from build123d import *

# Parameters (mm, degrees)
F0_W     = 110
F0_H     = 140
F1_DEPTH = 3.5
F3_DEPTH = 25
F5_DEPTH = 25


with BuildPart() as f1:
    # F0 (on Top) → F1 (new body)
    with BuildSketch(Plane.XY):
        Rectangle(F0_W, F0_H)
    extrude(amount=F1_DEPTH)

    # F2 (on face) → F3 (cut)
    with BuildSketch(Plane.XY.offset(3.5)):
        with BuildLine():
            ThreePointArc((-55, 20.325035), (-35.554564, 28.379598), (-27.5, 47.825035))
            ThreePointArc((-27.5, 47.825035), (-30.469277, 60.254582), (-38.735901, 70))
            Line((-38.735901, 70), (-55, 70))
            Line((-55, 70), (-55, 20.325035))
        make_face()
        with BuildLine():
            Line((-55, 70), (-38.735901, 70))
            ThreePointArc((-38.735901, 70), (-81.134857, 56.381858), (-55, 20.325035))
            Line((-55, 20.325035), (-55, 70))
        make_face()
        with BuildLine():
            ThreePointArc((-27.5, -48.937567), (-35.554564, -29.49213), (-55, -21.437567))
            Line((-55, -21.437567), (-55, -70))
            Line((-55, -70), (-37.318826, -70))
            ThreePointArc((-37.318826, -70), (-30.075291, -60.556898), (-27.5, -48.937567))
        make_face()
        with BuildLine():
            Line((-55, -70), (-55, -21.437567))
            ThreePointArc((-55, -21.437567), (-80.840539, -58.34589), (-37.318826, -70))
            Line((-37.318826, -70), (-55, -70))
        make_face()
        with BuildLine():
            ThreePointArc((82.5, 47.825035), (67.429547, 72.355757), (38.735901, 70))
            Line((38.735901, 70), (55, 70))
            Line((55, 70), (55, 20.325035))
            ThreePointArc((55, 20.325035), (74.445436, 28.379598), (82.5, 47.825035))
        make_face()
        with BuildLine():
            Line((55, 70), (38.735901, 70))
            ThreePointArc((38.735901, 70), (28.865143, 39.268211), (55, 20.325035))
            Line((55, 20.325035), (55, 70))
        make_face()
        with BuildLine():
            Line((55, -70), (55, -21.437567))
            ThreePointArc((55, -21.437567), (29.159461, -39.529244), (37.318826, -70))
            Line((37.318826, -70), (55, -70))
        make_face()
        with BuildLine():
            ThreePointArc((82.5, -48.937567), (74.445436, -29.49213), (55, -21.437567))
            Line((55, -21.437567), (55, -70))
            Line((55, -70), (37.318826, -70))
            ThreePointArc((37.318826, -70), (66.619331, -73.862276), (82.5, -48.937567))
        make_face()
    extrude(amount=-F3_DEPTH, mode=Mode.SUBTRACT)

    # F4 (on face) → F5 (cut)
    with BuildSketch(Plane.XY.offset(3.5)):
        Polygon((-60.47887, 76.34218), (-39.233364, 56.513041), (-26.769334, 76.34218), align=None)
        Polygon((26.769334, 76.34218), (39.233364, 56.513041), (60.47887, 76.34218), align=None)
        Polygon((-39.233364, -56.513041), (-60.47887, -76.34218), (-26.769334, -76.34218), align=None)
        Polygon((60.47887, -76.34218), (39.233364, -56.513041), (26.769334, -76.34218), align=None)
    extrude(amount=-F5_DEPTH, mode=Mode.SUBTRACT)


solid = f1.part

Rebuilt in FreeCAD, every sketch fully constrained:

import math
import FreeCAD as App
import Part
import Sketcher

V = App.Vector
Q = App.Units.Quantity


def add_polygon(sketch, points):
    """Adds a closed chain of lines whose ends are joined by coincident constraints."""
    first, n = sketch.GeometryCount, len(points)
    for a, b in zip(points, points[1:] + points[:1]):
        sketch.addGeometry(Part.LineSegment(App.Vector(*a, 0), App.Vector(*b, 0)), False)
    for i in range(n):
        sketch.addConstraint(Sketcher.Constraint("Coincident", first + i, 2, first + (i + 1) % n, 1))

doc = App.newDocument("Part")
body = doc.addObject("PartDesign::Body", "Body")

sketch1 = body.newObject("Sketcher::SketchObject", "Sketch")
sketch1.AttachmentSupport = (doc.getObject("XY_Plane"), [""])
sketch1.MapMode = "FlatFace"
add_polygon(sketch1, [(-55, 70), (-55, -70), (55, -70), (55, 70)])
sketch1.addConstraint([
    Sketcher.Constraint("Vertical", 0),
    Sketcher.Constraint("Horizontal", 1),
    Sketcher.Constraint("Vertical", 2),
    Sketcher.Constraint("Horizontal", 3),
    Sketcher.Constraint("Symmetric", 0, 2, 2, 2, -1, 1),
    Sketcher.Constraint("DistanceX", 1, 1, 1, 2, Q("110 mm")),
    Sketcher.Constraint("DistanceY", 0, 2, 0, 1, Q("140 mm")),
])
pad1 = body.newObject("PartDesign::Pad", "Pad")
pad1.Profile = sketch1
pad1.Length = 3.5

sketch2 = body.newObject("Sketcher::SketchObject", "Sketch001")
sketch2.AttachmentSupport = (doc.getObject("XY_Plane"), [""])
sketch2.MapMode = "FlatFace"
sketch2.AttachmentOffset = App.Placement(V(0, 0, 3.5), App.Rotation())
sketch2.addGeometry([
    Part.ArcOfCircle(Part.Circle(V(-55, 48, 0), V(0, 0, 1), 27), math.radians(-90), math.radians(0)),
    Part.ArcOfCircle(Part.Circle(V(-55, 48, 0), V(0, 0, 1), 27), math.radians(0), math.radians(54)),
    Part.ArcOfCircle(Part.Circle(V(-55, 48, 0), V(0, 0, 1), 27), math.radians(54), math.radians(270)),
    Part.ArcOfCircle(Part.Circle(V(-55, -49, 0), V(0, 0, 1), 27), math.radians(0), math.radians(90)),
    Part.ArcOfCircle(Part.Circle(V(-55, -49, 0), V(0, 0, 1), 27), math.radians(90), math.radians(310)),
    Part.ArcOfCircle(Part.Circle(V(-55, -49, 0), V(0, 0, 1), 28), math.radians(-50), math.radians(0)),
    Part.ArcOfCircle(Part.Circle(V(55, 48, 0), V(0, 0, 1), 28), math.radians(0), math.radians(126)),
    Part.ArcOfCircle(Part.Circle(V(55, 48, 0), V(0, 0, 1), 27), math.radians(126), math.radians(270)),
    Part.ArcOfCircle(Part.Circle(V(55, 48, 0), V(0, 0, 1), 27), math.radians(-90), math.radians(0)),
    Part.ArcOfCircle(Part.Circle(V(55, -49, 0), V(0, 0, 1), 27), math.radians(90), math.radians(230)),
    Part.ArcOfCircle(Part.Circle(V(55, -49, 0), V(0, 0, 1), 28), math.radians(-130), math.radians(0)),
    Part.ArcOfCircle(Part.Circle(V(55, -49, 0), V(0, 0, 1), 27), math.radians(0), math.radians(90)),
], False)
sketch2.addConstraint([
    Sketcher.Constraint("Tangent", 0, 2, 1, 1),
    Sketcher.Constraint("Tangent", 1, 2, 2, 1),
    Sketcher.Constraint("Tangent", 2, 2, 0, 1),
    Sketcher.Constraint("Tangent", 3, 2, 4, 1),
    Sketcher.Constraint("Tangent", 4, 2, 5, 1),
    Sketcher.Constraint("Tangent", 5, 2, 3, 1),
    Sketcher.Constraint("Tangent", 6, 2, 7, 1),
    Sketcher.Constraint("Tangent", 7, 2, 8, 1),
    Sketcher.Constraint("Tangent", 8, 2, 6, 1),
    Sketcher.Constraint("Tangent", 9, 2, 10, 1),
    Sketcher.Constraint("Tangent", 10, 2, 11, 1),
    Sketcher.Constraint("Tangent", 11, 2, 9, 1),
    Sketcher.Constraint("Equal", 2, 3),
    Sketcher.Constraint("Equal", 4, 6),
    Sketcher.Constraint("Equal", 8, 9),
    Sketcher.Constraint("Symmetric", 0, 3, 6, 3, -2),
    Sketcher.Constraint("Symmetric", 3, 3, 9, 3, -2),
    Sketcher.Constraint("Horizontal", 8, 3, 0, 2),
    Sketcher.Constraint("Horizontal", 11, 3, 5, 2),
    Sketcher.Constraint("Horizontal", 1, 2, 6, 2),
    Sketcher.Constraint("Horizontal", 0, 2, 8, 2),
    Sketcher.Constraint("Horizontal", 4, 2, 9, 2),
    Sketcher.Constraint("Horizontal", 5, 2, 10, 2),
    Sketcher.Constraint("Vertical", 2, 3, 3, 3),
    Sketcher.Constraint("Vertical", 4, 3, 2, 2),
    Sketcher.Constraint("Vertical", 2, 2, 3, 2),
    Sketcher.Constraint("Vertical", 11, 3, 7, 2),
    Sketcher.Constraint("Vertical", 7, 2, 11, 2),
    Sketcher.Constraint("Radius", 0, Q("27.5 mm")),
    Sketcher.Constraint("DistanceX", 0, 3, -1, 1, Q("55 mm")),
    Sketcher.Constraint("DistanceY", -1, 1, 1, 2, Q("70 mm")),
    Sketcher.Constraint("DistanceY", 4, 2, -1, 1, Q("70 mm")),
    Sketcher.Constraint("DistanceX", 1, 2, -1, 1, Q("38.735901 mm")),
    Sketcher.Constraint("DistanceY", 3, 3, 2, 3, Q("96.762602 mm")),
])
pocket1 = body.newObject("PartDesign::Pocket", "Pocket")
pocket1.Profile = sketch2
pocket1.Length = 25

sketch3 = body.newObject("Sketcher::SketchObject", "Sketch002")
sketch3.AttachmentSupport = (doc.getObject("XY_Plane"), [""])
sketch3.MapMode = "FlatFace"
sketch3.AttachmentOffset = App.Placement(V(0, 0, 3.5), App.Rotation())
add_polygon(sketch3, [(-60, 76), (-39, 57), (-27, 76)])
add_polygon(sketch3, [(27, 76), (39, 57), (60, 76)])
add_polygon(sketch3, [(-39, -57), (-60, -76), (-27, -76)])
add_polygon(sketch3, [(60, -76), (39, -57), (27, -76)])
sketch3.addConstraint([
    Sketcher.Constraint("Horizontal", 2),
    Sketcher.Constraint("Horizontal", 5),
    Sketcher.Constraint("Horizontal", 7),
    Sketcher.Constraint("Horizontal", 11),
    Sketcher.Constraint("Symmetric", 4, 2, 6, 2, -1, 1),
    Sketcher.Constraint("Symmetric", 3, 2, 8, 2, -1, 1),
    Sketcher.Constraint("Symmetric", 0, 2, 9, 2, -1, 1),
    Sketcher.Constraint("Symmetric", 1, 2, 10, 2, -1, 1),
    Sketcher.Constraint("Symmetric", 0, 2, 3, 2, -2),
    Sketcher.Constraint("Symmetric", 2, 2, 4, 2, -2),
    Sketcher.Constraint("Parallel", 3, 8),
    Sketcher.Constraint("Parallel", 0, 9),
    Sketcher.Constraint("Vertical", 1, 2, 7, 2),
    Sketcher.Constraint("DistanceX", 1, 2, 3, 2, Q("66.002698 mm")),
    Sketcher.Constraint("DistanceX", 2, 2, 2, 1, Q("33.709536 mm")),
    Sketcher.Constraint("DistanceY", -1, 1, 0, 2, Q("56.513041 mm")),
    Sketcher.Constraint("DistanceY", -1, 1, 1, 2, Q("76.34218 mm")),
    Sketcher.Constraint("DistanceX", 2, 2, -1, 1, Q("60.47887 mm")),
])
pocket2 = body.newObject("PartDesign::Pocket", "Pocket001")
pocket2.Profile = sketch3
pocket2.Length = 25

doc.recompute()
